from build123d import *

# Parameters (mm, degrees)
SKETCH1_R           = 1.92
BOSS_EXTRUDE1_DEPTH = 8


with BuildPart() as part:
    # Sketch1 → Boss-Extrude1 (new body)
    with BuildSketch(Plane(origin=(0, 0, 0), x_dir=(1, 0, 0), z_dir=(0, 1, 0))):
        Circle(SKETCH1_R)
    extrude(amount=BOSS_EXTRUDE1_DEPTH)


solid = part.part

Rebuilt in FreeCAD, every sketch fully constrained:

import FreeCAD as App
import Part
import Sketcher
Q = App.Units.Quantity

doc = App.newDocument("Part")
params = doc.addObject("Spreadsheet::Sheet", "Params")
for row, (alias, value) in enumerate([
    ("sketch1_diameter", "3.84 mm"),
    ("pad1_length", "8 mm"),
], start=1):
    params.set(f"A{row}", alias)
    params.set(f"B{row}", "=" + value)
    params.setAlias(f"B{row}", alias)

body = doc.addObject("PartDesign::Body", "Body")

sketch1 = doc.addObject("Sketcher::SketchObject", "Sketch")
body.addObject(sketch1)
sketch1.AttachmentSupport = (doc.XZ_Plane, [""])
sketch1.MapMode = "FlatFace"
sketch1.addGeometry(Part.Circle(App.Vector(0, 0, 0), App.Vector(0, 0, 1), 1.9), False)
sketch1.addConstraint([
    Sketcher.Constraint("Coincident", 0, 3, -1, 1),
    Sketcher.Constraint("Diameter", 0, Q("3.84 mm")),
])
sketch1.setExpression("Constraints[1]", "Params.sketch1_diameter")
pad1 = doc.addObject("PartDesign::Pad", "Pad")
body.addObject(pad1)
pad1.Profile = sketch1
pad1.setExpression("Length", "Params.pad1_length")
pad1.Reversed = True

doc.recompute()
